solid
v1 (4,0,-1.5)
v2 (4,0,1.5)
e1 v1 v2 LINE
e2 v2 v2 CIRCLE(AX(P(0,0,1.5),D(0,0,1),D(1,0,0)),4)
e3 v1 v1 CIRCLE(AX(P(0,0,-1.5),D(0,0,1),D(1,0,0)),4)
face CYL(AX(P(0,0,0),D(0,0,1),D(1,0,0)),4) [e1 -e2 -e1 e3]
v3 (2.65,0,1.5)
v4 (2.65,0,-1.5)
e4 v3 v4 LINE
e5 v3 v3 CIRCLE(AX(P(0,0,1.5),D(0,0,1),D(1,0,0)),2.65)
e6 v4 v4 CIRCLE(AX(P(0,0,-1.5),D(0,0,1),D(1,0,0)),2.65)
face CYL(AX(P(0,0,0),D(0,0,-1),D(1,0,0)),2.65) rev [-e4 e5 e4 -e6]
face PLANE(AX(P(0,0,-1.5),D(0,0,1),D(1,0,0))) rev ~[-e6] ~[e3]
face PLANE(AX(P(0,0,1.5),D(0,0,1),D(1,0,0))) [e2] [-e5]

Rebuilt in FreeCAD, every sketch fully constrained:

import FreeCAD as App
import Part
import Sketcher
from FreeCAD import Vector
Q = App.Units.Quantity

doc = App.newDocument("Part")
body = doc.addObject("PartDesign::Body", "Body")

sketch1 = body.newObject("Sketcher::SketchObject", "Sketch")
sketch1.AttachmentSupport = (doc.getObject("XY_Plane"), [""])
sketch1.MapMode = "FlatFace"
sketch1.addGeometry([
    Part.Circle(Vector(0, 0, 0), Vector(0, 0, 1), 4),
    Part.Circle(Vector(0, 0, 0), Vector(0, 0, 1), 2.65),
], False)
sketch1.addConstraint([
    Sketcher.Constraint("Coincident", 0, 3, -1, 1),
    Sketcher.Constraint("Coincident", 1, 3, -1, 1),
    Sketcher.Constraint("Diameter", 0, Q("8 mm")),
    Sketcher.Constraint("Diameter", 1, Q("5.3 mm")),
])
pad1 = body.newObject("PartDesign::Pad", "Pad")
pad1.Profile = sketch1
pad1.Length = 3
pad1.Midplane = True

doc.recompute()
